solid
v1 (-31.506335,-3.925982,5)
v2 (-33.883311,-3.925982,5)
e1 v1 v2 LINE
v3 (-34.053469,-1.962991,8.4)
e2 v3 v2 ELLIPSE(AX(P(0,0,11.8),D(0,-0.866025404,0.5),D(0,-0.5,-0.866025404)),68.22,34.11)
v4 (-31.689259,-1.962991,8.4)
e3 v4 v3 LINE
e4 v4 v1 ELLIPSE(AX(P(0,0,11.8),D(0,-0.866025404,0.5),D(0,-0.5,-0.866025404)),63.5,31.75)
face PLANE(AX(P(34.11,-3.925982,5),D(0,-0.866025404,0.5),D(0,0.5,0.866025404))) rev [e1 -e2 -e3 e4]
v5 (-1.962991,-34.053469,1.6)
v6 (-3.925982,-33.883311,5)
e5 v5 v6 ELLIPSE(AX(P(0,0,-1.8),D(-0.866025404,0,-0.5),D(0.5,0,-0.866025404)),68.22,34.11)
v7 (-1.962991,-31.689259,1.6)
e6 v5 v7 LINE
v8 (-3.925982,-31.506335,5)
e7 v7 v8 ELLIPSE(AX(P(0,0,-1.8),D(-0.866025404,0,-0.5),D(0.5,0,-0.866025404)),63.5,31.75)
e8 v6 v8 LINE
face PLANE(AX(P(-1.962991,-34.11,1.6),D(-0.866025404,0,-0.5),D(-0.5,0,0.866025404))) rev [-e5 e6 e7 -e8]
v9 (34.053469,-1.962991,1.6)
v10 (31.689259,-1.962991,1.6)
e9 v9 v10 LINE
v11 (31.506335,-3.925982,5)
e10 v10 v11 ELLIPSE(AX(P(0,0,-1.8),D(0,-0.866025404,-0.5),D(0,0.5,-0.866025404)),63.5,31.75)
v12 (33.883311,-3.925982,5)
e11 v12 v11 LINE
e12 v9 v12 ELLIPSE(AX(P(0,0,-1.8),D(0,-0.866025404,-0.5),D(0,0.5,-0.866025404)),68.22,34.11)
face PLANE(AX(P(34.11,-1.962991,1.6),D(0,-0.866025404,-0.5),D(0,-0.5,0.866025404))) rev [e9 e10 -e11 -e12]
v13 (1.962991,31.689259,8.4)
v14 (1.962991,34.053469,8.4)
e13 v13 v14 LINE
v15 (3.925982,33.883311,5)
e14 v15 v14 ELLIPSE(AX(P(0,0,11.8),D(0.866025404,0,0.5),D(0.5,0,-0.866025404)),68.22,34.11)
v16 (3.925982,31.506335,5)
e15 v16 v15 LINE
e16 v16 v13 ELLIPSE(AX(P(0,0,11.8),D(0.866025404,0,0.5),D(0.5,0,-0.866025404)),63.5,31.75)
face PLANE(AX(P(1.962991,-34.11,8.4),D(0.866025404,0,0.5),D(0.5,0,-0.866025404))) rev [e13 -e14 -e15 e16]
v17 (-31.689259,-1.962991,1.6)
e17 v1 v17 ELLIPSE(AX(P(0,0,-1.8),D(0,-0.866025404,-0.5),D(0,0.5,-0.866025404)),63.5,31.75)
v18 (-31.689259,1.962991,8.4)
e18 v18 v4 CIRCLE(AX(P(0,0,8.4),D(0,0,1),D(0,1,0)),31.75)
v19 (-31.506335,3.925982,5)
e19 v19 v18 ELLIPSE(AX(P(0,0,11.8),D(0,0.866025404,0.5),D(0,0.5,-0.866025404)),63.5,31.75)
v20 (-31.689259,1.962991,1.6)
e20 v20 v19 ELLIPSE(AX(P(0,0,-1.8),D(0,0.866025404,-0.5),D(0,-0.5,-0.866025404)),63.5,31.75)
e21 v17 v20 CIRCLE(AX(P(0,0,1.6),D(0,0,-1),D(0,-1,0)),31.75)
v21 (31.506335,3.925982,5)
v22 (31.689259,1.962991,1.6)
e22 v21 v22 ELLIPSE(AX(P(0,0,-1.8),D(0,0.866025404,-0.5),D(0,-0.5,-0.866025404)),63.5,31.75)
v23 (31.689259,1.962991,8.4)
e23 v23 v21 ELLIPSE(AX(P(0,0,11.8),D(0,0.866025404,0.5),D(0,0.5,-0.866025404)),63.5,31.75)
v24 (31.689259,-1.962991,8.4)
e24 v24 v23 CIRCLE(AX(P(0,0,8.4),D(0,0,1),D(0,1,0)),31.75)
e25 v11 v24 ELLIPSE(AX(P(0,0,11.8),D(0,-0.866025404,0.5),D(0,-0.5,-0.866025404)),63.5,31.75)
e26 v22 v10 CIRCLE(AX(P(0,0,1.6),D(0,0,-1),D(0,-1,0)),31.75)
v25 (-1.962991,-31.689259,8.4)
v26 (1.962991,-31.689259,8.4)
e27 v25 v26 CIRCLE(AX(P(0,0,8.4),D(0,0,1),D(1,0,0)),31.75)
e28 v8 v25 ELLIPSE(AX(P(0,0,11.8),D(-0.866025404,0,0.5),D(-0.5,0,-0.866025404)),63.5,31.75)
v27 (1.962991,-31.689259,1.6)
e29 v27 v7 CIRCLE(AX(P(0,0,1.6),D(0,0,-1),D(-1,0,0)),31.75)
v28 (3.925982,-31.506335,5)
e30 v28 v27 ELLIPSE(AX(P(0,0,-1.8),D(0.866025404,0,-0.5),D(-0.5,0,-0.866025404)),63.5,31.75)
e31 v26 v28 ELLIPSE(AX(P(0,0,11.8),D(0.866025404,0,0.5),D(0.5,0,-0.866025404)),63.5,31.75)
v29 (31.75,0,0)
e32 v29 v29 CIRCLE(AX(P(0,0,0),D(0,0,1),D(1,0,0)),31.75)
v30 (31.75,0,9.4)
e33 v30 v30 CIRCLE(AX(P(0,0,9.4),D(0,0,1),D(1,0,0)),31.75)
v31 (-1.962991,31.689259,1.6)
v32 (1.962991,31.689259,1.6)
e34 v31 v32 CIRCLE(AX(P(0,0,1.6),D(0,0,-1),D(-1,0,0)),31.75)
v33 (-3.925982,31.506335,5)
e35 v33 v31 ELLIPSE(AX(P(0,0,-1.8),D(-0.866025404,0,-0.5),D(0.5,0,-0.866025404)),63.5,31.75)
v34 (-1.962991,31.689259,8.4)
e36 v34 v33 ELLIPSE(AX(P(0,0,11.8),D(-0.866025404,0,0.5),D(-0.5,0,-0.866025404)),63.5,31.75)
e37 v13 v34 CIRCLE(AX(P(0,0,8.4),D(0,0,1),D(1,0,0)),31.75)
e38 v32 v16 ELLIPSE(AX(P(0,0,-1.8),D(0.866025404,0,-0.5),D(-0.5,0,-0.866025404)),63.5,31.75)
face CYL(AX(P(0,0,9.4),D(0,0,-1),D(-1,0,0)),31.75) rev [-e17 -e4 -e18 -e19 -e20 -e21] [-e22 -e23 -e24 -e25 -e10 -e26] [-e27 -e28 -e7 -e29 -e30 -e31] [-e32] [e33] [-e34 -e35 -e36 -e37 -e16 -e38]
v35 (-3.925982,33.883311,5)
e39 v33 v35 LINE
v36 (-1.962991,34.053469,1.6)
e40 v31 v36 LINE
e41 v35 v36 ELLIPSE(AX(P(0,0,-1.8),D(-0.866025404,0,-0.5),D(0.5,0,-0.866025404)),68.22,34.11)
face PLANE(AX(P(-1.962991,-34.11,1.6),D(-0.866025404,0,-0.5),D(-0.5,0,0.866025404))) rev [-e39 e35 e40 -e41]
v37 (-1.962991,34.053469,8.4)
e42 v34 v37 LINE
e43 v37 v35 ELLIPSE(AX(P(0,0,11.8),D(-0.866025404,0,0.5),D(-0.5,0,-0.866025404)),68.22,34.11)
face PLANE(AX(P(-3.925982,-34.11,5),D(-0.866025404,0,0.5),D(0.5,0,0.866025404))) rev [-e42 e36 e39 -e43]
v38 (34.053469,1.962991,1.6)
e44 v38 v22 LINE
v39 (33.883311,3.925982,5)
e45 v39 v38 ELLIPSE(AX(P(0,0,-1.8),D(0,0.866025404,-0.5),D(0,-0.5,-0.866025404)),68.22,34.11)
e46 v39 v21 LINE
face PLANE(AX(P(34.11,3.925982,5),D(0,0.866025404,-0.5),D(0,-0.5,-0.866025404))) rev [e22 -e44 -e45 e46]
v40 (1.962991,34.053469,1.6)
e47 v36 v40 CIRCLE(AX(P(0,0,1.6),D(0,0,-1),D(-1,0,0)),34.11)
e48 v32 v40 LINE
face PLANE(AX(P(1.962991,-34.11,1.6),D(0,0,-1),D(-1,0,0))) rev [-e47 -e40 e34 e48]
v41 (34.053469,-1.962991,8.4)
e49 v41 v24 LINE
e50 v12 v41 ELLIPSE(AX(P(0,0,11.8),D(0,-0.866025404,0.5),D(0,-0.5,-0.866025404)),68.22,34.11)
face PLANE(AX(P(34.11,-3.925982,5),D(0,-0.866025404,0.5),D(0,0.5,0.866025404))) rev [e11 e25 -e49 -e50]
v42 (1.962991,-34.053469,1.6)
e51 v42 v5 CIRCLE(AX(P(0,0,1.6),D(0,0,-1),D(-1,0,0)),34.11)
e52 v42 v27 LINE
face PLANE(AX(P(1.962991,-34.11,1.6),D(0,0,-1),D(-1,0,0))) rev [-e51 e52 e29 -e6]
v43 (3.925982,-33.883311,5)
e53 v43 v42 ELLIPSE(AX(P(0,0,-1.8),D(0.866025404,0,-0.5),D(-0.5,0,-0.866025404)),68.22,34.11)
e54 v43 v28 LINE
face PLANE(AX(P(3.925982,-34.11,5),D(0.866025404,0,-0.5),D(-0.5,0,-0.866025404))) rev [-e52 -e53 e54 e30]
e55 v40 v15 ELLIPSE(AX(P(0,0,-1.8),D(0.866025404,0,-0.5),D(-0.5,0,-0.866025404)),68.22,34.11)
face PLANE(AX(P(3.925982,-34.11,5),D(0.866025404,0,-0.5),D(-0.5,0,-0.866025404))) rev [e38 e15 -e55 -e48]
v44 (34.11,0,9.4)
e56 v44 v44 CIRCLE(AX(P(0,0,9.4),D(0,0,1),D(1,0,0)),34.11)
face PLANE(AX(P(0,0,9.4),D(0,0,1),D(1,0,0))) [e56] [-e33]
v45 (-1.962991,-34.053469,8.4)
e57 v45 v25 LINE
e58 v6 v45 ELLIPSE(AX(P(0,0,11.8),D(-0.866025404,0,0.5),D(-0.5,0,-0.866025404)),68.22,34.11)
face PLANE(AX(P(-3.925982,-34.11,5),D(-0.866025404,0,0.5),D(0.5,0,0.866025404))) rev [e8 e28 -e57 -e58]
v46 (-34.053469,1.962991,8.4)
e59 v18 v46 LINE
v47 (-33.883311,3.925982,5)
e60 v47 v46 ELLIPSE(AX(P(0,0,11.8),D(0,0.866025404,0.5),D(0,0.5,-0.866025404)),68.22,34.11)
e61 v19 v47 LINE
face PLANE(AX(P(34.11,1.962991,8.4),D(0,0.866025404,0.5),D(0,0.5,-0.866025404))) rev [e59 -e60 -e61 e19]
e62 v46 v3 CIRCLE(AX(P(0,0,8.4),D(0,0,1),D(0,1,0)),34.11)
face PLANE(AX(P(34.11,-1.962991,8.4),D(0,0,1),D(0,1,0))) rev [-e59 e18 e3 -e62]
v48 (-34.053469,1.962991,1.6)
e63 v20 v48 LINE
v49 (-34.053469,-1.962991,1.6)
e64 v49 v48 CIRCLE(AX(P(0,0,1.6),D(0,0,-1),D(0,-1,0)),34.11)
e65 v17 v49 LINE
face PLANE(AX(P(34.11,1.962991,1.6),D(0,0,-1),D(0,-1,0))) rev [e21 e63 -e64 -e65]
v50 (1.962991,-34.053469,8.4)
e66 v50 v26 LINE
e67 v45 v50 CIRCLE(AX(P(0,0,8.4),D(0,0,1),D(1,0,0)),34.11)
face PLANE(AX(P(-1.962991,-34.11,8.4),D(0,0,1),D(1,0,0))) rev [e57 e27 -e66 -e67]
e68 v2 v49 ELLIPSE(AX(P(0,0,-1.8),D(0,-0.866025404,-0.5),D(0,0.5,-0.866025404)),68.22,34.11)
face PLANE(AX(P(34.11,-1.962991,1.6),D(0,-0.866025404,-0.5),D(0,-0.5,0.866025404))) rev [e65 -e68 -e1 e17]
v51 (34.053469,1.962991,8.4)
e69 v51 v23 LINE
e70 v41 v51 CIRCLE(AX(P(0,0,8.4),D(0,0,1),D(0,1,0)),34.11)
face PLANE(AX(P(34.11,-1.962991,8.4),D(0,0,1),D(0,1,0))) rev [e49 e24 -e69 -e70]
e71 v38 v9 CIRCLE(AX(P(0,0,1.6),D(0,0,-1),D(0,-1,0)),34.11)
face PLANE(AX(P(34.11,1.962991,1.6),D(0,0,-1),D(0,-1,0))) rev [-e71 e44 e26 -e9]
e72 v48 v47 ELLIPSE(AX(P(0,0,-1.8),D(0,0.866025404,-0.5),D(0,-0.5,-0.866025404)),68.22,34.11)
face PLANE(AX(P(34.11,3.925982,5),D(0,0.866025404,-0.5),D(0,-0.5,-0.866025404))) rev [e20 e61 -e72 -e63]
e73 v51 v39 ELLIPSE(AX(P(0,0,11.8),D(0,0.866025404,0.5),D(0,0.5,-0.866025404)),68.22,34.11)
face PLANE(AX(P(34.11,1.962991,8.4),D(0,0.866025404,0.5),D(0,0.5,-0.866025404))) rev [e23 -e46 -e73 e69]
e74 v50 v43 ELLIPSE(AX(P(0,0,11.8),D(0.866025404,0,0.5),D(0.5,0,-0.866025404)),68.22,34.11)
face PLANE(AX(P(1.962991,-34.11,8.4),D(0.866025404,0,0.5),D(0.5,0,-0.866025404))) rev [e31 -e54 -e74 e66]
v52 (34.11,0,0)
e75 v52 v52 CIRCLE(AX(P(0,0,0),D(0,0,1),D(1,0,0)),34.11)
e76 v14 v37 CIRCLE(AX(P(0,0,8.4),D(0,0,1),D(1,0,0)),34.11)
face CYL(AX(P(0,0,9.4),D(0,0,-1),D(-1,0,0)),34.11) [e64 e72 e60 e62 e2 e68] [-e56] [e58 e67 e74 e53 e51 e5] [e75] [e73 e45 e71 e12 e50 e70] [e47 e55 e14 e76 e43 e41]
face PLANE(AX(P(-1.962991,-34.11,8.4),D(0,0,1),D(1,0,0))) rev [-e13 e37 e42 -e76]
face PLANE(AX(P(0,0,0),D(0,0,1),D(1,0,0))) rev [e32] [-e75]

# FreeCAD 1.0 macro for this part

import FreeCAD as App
import Part
import Sketcher
from FreeCAD import Vector
Q = App.Units.Quantity

doc = App.newDocument("Part")
body = doc.addObject("PartDesign::Body", "Body")

sketch1 = body.newObject("Sketcher::SketchObject", "Sketch")
sketch1.AttachmentSupport = (doc.getObject("XY_Plane"), [""])
sketch1.MapMode = "FlatFace"
sketch1.addGeometry(Part.Circle(Vector(0, 0, 0), Vector(0, 0, 1), 34), False)
sketch1.addGeometry(Part.Circle(Vector(0, 0, 0), Vector(0, 0, 1), 32), False)
sketch1.addConstraint(Sketcher.Constraint("Coincident", 0, 3, -1, 1))
sketch1.addConstraint(Sketcher.Constraint("Coincident", 1, 3, -1, 1))
sketch1.addConstraint(Sketcher.Constraint("Diameter", 1, 63.5))
sketch1.addConstraint(Sketcher.Constraint("Diameter", 0, 68.22))
pad1 = body.newObject("PartDesign::Pad", "Pad")
pad1.Profile = sketch1
pad1.Length = 9.4

sketch2 = body.newObject("Sketcher::SketchObject", "Sketch001")
sketch2.AttachmentSupport = (doc.getObject("XZ_Plane"), [""])
sketch2.MapMode = "FlatFace"
sketch2.AttachmentOffset = App.Placement(Vector(0, 0, -34.11), App.Rotation())
sketch2.addGeometry(Part.LineSegment(Vector(3.9, 5, 0), Vector(2, 1.6, 0)), False)
sketch2.addGeometry(Part.LineSegment(Vector(2, 1.6, 0), Vector(-2, 1.6, 0)), False)
sketch2.addGeometry(Part.LineSegment(Vector(-2, 1.6, 0), Vector(-3.9, 5, 0)), False)
sketch2.addGeometry(Part.LineSegment(Vector(-3.9, 5, 0), Vector(-2, 8.4, 0)), False)
sketch2.addGeometry(Part.LineSegment(Vector(-2, 8.4, 0), Vector(2, 8.4, 0)), False)
sketch2.addGeometry(Part.LineSegment(Vector(2, 8.4, 0), Vector(3.9, 5, 0)), False)
sketch2.addConstraint(Sketcher.Constraint("Coincident", 0, 2, 1, 1))
sketch2.addConstraint(Sketcher.Constraint("Coincident", 1, 2, 2, 1))
sketch2.addConstraint(Sketcher.Constraint("Coincident", 2, 2, 3, 1))
sketch2.addConstraint(Sketcher.Constraint("Coincident", 3, 2, 4, 1))
sketch2.addConstraint(Sketcher.Constraint("Coincident", 4, 2, 5, 1))
sketch2.addConstraint(Sketcher.Constraint("Coincident", 5, 2, 0, 1))
sketch2.addConstraint(Sketcher.Constraint("Horizontal", 1))
sketch2.addConstraint(Sketcher.Constraint("Horizontal", 4))
sketch2.addConstraint(Sketcher.Constraint("Symmetric", 2, 2, 5, 2, -2))
sketch2.addConstraint(Sketcher.Constraint("Parallel", 0, 3))
sketch2.addConstraint(Sketcher.Constraint("Parallel", 2, 5))
sketch2.addConstraint(Sketcher.Constraint("Vertical", 1, 2, 3, 2))
sketch2.addConstraint(Sketcher.Constraint("Vertical", 0, 2, 4, 2))
sketch2.addConstraint(Sketcher.Constraint("Angle", 0, Q("-120 deg")))
sketch2.addConstraint(Sketcher.Constraint("DistanceY", -1, 1, 2, 2, 5.0))
sketch2.addConstraint(Sketcher.Constraint("DistanceY", -1, 1, 0, 2, 1.6))
sketch2.addConstraint(Sketcher.Constraint("DistanceX", 1, 2, 1, 1, 3.925982))
pocket1 = body.newObject("PartDesign::Pocket", "Pocket")
pocket1.Profile = sketch2
pocket1.Type = "ThroughAll"
pocket1.Reversed = True
doc.recompute()

polarpattern = body.newObject("PartDesign::PolarPattern", "PolarPattern")
polarpattern.Originals = [pocket1]
polarpattern.Axis = (doc.getObject("Z_Axis"), [""])
polarpattern.Angle = 90
polarpattern.Occurrences = 2
body.Tip = polarpattern

doc.recompute()
